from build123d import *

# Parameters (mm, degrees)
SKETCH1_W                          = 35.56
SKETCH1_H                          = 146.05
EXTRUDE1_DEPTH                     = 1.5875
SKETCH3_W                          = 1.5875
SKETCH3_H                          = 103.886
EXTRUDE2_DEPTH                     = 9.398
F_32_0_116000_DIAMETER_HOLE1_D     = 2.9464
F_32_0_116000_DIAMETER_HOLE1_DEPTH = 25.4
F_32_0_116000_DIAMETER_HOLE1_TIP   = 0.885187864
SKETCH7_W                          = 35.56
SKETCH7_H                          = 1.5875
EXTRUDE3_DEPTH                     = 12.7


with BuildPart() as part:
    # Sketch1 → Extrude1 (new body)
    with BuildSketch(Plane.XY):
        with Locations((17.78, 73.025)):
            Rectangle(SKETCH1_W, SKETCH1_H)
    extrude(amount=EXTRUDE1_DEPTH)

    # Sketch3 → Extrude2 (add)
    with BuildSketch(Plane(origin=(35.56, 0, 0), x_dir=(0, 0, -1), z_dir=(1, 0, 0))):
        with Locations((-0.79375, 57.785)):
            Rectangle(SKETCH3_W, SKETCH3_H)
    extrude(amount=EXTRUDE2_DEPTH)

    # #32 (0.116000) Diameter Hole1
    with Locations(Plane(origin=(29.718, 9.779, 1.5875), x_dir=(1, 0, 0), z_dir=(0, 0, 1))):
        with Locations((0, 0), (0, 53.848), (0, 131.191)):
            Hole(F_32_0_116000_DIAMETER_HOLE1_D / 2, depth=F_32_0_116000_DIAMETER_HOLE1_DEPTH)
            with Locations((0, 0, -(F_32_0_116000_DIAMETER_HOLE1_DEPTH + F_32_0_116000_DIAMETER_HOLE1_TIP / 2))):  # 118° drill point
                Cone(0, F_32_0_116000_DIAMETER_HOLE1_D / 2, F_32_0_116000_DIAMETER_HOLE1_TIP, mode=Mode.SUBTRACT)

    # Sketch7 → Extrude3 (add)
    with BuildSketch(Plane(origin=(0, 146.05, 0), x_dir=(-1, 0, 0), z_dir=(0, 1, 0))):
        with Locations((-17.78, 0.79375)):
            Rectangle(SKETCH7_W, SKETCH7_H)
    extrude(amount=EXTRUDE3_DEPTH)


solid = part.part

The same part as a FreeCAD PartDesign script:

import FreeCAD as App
import Part
import Sketcher
from FreeCAD import Vector
Q = App.Units.Quantity


def add_polygon(sketch, points):
    """Adds a closed chain of lines whose ends are joined by coincident constraints."""
    first, n = sketch.GeometryCount, len(points)
    for a, b in zip(points, points[1:] + points[:1]):
        sketch.addGeometry(Part.LineSegment(App.Vector(*a, 0), App.Vector(*b, 0)), False)
    for i in range(n):
        sketch.addConstraint(Sketcher.Constraint("Coincident", first + i, 2, first + (i + 1) % n, 1))

doc = App.newDocument("Part")
body = doc.addObject("PartDesign::Body", "Body")

# Sketch on XY plane
sketch1 = body.newObject("Sketcher::SketchObject", "Sketch")
sketch1.AttachmentSupport = (doc.getObject("XY_Plane"), [""])
sketch1.MapMode = "FlatFace"
add_polygon(sketch1, [(0, 146.05), (0, 0), (35.56, 0), (35.56, 146.05)])  # lines 0-3
sketch1.addConstraint([
    Sketcher.Constraint("Vertical", 0),
    Sketcher.Constraint("Horizontal", 1),
    Sketcher.Constraint("Vertical", 2),
    Sketcher.Constraint("Horizontal", 3),
    Sketcher.Constraint("Coincident", 0, 2, -1, 1),
    Sketcher.Constraint("DistanceX", 1, 1, 1, 2, Q("1.4 in")),
    Sketcher.Constraint("DistanceY", 0, 2, 0, 1, Q("5.75 in")),
])
pad1 = body.newObject("PartDesign::Pad", "Pad")
pad1.Profile = sketch1
pad1.Length = Q("0.0625 in")

# Sketch on YZ plane
sketch2 = body.newObject("Sketcher::SketchObject", "Sketch001")
sketch2.AttachmentSupport = (doc.getObject("YZ_Plane"), [""])
sketch2.MapMode = "FlatFace"
sketch2.AttachmentOffset = App.Placement(Vector(0, 0, 1.4 * 25.4), App.Rotation())
add_polygon(sketch2, [(109.728, 1.5875), (5.842, 1.5875), (5.842, 0), (109.728, 0)])  # lines 0-3
sketch2.addConstraint([
    Sketcher.Constraint("Horizontal", 0),
    Sketcher.Constraint("Vertical", 1),
    Sketcher.Constraint("Horizontal", 2),
    Sketcher.Constraint("Vertical", 3),
    Sketcher.Constraint("PointOnObject", 1, 2, -1),
    Sketcher.Constraint("DistanceX", 0, 2, 0, 1, Q("4.09 in")),
    Sketcher.Constraint("DistanceY", 1, 2, 1, 1, Q("0.0625 in")),
    Sketcher.Constraint("DistanceX", -1, 1, 0, 2, Q("0.23 in")),
])
pad2 = body.newObject("PartDesign::Pad", "Pad001")
pad2.Profile = sketch2
pad2.Length = Q("0.37 in")

# Sketch on XY plane
sketch3 = body.newObject("Sketcher::SketchObject", "Sketch002")
sketch3.AttachmentSupport = (doc.getObject("XY_Plane"), [""])
sketch3.MapMode = "FlatFace"
sketch3.AttachmentOffset = App.Placement(Vector(0, 0, 0.0625 * 25.4), App.Rotation())
sketch3.addGeometry([
    Part.Circle(Vector(29.718, 9.779, 0), Vector(0, 0, 1), 1.4732),
    Part.Circle(Vector(29.718, 63.627, 0), Vector(0, 0, 1), 1.4732),
    Part.Circle(Vector(29.718, 140.97, 0), Vector(0, 0, 1), 1.4732),
], False)
sketch3.addConstraint([
    Sketcher.Constraint("Equal", 0, 1),
    Sketcher.Constraint("Equal", 1, 2),
    Sketcher.Constraint("Vertical", 0, 3, 1, 3),
    Sketcher.Constraint("Vertical", 1, 3, 2, 3),
    Sketcher.Constraint("Diameter", 0, Q("0.116 in")),
    Sketcher.Constraint("DistanceX", -1, 1, 0, 3, Q("1.17 in")),
    Sketcher.Constraint("DistanceY", -1, 1, 2, 3, Q("5.55 in")),
    Sketcher.Constraint("DistanceY", 0, 3, 1, 3, Q("2.12 in")),
    Sketcher.Constraint("DistanceY", -1, 1, 0, 3, Q("0.385 in")),
])
doc.recompute()
hole = body.newObject("PartDesign::Hole", "Hole")
hole.Profile = sketch3
hole.ThreadType = "None"
hole.Diameter = Q("0.116 in")
hole.DepthType = "Dimension"
hole.Depth = Q("1 in")
hole.DrillPoint = "Angled"
hole.DrillPointAngle = 118

# Sketch on XZ plane
sketch4 = body.newObject("Sketcher::SketchObject", "Sketch003")
sketch4.AttachmentSupport = (doc.getObject("XZ_Plane"), [""])
sketch4.MapMode = "FlatFace"
sketch4.AttachmentOffset = App.Placement(Vector(0, 0, -5.75 * 25.4), App.Rotation())
add_polygon(sketch4, [(35.56, 1.5875), (35.56, 0), (0, 0), (0, 1.5875)])  # lines 0-3
sketch4.addConstraint([
    Sketcher.Constraint("Vertical", 0),
    Sketcher.Constraint("Horizontal", 1),
    Sketcher.Constraint("Vertical", 2),
    Sketcher.Constraint("Horizontal", 3),
    Sketcher.Constraint("Coincident", 1, 2, -1, 1),
    Sketcher.Constraint("DistanceX", 1, 2, 1, 1, Q("1.4 in")),
    Sketcher.Constraint("DistanceY", 0, 2, 0, 1, Q("0.0625 in")),
])
pad3 = body.newObject("PartDesign::Pad", "Pad002")
pad3.Profile = sketch4
pad3.Length = Q("0.5 in")
pad3.Reversed = True

doc.recompute()
